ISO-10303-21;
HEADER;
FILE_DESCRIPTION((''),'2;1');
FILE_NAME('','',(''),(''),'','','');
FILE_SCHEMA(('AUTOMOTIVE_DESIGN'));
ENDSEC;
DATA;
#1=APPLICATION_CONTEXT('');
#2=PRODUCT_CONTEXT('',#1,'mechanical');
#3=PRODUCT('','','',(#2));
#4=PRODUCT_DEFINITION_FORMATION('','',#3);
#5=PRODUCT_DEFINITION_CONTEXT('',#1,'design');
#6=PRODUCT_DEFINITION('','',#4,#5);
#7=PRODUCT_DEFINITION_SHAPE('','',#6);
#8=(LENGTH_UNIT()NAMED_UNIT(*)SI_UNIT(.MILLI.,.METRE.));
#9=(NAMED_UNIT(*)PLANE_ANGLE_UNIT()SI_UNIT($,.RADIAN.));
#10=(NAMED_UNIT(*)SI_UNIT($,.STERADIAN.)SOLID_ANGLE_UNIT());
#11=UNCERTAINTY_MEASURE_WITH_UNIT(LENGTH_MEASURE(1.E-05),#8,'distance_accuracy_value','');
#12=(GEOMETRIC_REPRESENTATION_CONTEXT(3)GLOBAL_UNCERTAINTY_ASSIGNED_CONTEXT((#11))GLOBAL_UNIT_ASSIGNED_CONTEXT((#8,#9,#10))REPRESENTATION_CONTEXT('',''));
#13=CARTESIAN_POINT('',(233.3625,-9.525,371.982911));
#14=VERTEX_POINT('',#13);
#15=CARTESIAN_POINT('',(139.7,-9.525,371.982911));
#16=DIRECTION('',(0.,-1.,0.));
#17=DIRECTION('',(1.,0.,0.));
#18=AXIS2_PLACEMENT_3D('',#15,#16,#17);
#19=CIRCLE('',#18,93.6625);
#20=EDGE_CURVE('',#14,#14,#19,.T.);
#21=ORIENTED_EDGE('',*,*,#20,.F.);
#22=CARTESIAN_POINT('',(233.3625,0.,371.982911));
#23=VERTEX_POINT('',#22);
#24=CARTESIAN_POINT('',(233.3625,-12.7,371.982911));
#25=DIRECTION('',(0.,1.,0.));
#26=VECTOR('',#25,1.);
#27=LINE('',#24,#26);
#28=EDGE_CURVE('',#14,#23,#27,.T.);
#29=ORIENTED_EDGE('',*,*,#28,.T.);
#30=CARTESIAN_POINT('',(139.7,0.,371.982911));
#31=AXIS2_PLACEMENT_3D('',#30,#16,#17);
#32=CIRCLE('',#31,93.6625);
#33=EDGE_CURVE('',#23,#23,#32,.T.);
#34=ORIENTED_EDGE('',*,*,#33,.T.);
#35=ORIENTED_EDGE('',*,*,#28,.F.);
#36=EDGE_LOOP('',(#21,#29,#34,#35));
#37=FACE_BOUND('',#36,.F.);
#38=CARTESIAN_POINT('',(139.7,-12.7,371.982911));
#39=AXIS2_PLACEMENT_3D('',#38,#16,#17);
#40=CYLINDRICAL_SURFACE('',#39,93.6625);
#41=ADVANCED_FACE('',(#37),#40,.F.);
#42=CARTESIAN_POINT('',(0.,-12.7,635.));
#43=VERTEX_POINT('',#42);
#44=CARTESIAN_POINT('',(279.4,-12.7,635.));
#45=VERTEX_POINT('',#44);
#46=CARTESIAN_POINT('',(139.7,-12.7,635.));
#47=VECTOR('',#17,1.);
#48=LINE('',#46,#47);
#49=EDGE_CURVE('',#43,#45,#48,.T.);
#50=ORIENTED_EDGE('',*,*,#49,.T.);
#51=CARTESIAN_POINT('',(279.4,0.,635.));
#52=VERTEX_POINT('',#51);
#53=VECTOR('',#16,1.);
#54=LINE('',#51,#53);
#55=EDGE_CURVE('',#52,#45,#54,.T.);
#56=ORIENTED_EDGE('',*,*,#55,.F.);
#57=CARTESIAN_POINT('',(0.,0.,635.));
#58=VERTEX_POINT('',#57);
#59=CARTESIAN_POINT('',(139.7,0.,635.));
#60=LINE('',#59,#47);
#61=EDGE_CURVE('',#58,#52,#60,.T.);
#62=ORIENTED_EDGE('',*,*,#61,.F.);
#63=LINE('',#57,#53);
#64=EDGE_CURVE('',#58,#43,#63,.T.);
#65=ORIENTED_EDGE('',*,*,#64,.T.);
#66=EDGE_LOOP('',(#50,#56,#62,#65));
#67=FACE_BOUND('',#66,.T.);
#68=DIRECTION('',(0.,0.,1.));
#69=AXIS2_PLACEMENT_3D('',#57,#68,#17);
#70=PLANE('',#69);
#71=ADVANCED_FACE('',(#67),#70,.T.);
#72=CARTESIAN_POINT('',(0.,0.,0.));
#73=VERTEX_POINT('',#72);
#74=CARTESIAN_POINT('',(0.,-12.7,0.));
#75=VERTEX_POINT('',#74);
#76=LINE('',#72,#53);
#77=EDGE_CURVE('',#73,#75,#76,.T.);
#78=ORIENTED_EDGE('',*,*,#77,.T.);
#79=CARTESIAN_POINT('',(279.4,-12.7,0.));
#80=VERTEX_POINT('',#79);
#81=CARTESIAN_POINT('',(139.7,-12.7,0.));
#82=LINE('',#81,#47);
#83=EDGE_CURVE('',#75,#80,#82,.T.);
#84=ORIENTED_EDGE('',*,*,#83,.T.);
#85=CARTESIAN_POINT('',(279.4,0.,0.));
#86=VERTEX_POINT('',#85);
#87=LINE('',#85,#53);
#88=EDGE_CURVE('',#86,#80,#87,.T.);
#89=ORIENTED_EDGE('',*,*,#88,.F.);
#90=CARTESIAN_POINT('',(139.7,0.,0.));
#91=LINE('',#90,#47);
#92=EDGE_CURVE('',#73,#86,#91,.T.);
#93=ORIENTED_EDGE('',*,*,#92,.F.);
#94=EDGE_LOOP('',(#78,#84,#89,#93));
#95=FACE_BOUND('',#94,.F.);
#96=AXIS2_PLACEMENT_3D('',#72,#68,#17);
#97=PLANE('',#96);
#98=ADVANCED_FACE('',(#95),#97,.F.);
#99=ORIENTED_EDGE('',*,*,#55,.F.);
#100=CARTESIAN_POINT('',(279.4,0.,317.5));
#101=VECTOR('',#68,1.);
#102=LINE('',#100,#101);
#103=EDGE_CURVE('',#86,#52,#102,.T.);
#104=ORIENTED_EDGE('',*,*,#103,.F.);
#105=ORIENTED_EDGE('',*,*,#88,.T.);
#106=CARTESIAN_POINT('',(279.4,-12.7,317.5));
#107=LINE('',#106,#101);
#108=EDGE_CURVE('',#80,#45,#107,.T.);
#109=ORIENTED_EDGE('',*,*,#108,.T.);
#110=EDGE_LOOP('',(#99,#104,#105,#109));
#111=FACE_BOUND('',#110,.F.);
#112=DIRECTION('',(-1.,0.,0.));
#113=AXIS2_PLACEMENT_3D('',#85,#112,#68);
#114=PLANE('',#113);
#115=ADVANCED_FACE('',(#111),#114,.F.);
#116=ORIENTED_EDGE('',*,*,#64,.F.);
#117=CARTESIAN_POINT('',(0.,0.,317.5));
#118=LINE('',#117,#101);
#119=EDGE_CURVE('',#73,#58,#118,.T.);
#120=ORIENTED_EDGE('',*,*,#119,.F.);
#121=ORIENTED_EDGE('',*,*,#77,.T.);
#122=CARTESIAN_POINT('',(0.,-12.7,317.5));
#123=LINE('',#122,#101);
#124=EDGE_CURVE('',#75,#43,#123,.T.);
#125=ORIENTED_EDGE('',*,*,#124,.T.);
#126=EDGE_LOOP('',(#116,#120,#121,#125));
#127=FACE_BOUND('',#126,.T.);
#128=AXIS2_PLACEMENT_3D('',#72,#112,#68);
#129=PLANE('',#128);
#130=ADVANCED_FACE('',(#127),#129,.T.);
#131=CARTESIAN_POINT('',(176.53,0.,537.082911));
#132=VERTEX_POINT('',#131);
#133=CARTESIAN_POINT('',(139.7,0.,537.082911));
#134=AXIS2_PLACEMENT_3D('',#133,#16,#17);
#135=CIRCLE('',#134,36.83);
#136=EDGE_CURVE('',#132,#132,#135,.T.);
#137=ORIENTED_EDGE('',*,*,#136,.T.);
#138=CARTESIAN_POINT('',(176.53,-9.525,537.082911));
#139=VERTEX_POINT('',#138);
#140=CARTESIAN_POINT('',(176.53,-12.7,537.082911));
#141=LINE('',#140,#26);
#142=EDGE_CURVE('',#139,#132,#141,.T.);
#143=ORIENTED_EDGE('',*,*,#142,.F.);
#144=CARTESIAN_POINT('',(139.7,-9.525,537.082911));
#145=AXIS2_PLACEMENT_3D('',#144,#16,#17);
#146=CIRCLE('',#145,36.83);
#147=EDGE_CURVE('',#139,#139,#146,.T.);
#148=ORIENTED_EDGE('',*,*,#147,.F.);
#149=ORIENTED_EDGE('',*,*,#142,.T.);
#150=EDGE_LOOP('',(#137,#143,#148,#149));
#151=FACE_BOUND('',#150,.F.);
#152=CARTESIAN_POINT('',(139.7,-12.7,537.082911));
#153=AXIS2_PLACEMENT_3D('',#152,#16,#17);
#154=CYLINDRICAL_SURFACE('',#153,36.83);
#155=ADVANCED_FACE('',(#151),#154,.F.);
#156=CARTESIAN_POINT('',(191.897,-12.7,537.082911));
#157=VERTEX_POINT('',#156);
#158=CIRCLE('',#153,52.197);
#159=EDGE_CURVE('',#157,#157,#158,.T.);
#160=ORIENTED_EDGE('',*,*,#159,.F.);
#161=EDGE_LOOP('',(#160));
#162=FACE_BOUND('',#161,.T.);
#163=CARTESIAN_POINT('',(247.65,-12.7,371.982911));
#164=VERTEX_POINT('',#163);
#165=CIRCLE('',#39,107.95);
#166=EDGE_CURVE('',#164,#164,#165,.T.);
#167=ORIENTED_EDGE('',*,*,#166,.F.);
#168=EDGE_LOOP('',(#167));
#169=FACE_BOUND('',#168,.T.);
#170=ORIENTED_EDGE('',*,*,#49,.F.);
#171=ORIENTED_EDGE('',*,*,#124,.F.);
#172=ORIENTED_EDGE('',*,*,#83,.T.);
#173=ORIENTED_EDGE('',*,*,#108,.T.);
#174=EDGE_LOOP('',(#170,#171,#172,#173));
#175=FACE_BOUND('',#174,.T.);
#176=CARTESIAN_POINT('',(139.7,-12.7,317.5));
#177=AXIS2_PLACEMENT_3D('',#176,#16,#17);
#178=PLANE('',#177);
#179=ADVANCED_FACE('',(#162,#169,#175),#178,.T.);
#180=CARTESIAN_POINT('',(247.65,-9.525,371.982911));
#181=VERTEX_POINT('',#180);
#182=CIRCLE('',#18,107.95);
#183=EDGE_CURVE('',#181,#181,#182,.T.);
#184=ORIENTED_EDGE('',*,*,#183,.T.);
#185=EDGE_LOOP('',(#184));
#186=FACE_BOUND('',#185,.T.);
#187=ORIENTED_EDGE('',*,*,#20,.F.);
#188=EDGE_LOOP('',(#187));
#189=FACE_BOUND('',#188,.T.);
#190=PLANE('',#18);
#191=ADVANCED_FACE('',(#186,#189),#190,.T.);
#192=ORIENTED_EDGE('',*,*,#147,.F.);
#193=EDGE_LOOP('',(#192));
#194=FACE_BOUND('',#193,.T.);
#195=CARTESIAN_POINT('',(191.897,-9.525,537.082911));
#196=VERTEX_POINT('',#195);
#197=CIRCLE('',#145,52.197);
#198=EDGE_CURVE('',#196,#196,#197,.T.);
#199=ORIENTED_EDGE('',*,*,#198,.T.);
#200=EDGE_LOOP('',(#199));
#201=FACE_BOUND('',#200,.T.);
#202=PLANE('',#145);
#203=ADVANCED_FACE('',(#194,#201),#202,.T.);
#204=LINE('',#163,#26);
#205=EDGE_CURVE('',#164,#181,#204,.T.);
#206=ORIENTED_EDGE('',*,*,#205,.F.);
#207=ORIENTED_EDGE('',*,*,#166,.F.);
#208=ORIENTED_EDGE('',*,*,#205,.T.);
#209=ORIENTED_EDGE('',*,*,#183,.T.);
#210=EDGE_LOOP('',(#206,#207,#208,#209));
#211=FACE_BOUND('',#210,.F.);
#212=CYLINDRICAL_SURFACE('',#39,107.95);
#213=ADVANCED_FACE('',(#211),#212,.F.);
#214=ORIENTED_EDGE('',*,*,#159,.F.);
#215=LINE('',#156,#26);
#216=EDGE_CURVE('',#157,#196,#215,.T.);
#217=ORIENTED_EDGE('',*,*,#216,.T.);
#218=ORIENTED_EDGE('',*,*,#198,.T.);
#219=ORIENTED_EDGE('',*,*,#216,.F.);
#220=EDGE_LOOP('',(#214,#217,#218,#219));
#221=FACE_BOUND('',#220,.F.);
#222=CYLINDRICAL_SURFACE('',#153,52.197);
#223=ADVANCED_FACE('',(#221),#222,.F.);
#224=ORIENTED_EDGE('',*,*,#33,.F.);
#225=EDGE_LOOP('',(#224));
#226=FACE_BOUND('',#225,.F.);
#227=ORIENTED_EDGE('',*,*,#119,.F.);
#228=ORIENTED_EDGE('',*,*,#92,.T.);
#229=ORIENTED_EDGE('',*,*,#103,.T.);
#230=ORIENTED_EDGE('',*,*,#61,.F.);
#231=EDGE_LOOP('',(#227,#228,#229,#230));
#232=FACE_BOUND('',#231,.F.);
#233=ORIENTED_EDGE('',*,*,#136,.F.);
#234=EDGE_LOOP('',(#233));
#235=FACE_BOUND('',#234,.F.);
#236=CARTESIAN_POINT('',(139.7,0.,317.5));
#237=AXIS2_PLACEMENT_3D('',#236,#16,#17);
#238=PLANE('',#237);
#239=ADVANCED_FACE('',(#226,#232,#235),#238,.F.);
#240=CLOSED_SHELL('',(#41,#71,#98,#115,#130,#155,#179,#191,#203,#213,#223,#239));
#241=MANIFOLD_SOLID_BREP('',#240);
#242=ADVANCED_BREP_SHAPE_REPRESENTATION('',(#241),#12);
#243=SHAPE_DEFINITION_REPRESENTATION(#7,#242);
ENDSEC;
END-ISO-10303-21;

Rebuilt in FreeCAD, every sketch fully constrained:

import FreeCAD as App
import Part
import Sketcher

V = App.Vector
Q = App.Units.Quantity

doc = App.newDocument("Part")
body = doc.addObject("PartDesign::Body", "Body")

# Sketch on XZ plane
sketch1 = body.newObject("Sketcher::SketchObject", "Sketch")
sketch1.AttachmentSupport = (doc.getObject("XZ_Plane"), [""])
sketch1.MapMode = "FlatFace"
sketch1.addGeometry([
    Part.LineSegment(V(0, 635, 0), V(0, 0, 0)),
    Part.LineSegment(V(0, 0, 0), V(279.4, 0, 0)),
    Part.LineSegment(V(279.4, 0, 0), V(279.4, 635, 0)),
    Part.LineSegment(V(279.4, 635, 0), V(0, 635, 0)),
], False)
sketch1.addConstraint([
    Sketcher.Constraint("Coincident", 0, 2, 1, 1),
    Sketcher.Constraint("Coincident", 1, 2, 2, 1),
    Sketcher.Constraint("Coincident", 2, 2, 3, 1),
    Sketcher.Constraint("Coincident", 3, 2, 0, 1),
    Sketcher.Constraint("Vertical", 0),
    Sketcher.Constraint("Horizontal", 1),
    Sketcher.Constraint("Vertical", 2),
    Sketcher.Constraint("Horizontal", 3),
    Sketcher.Constraint("Coincident", 0, 2, -1, 1),
    Sketcher.Constraint("DistanceX", 1, 1, 1, 2, Q("11 in")),
    Sketcher.Constraint("DistanceY", 0, 2, 0, 1, Q("25 in")),
])
pad1 = body.newObject("PartDesign::Pad", "Pad")
pad1.Profile = sketch1
pad1.Length = Q("0.5 in")

# Sketch on XZ plane
sketch2 = body.newObject("Sketcher::SketchObject", "Sketch001")
sketch2.AttachmentSupport = (doc.getObject("XZ_Plane"), [""])
sketch2.MapMode = "FlatFace"
sketch2.AttachmentOffset = App.Placement(V(0, 0, 0.5 * 25.4), App.Rotation())
sketch2.addGeometry([
    Part.Circle(V(139.7, 537.082911, 0), V(0, 0, 1), 52.197),
    Part.Circle(V(139.7, 371.982911, 0), V(0, 0, 1), 107.95),
], False)
sketch2.addConstraint([
    Sketcher.Constraint("Vertical", 0, 3, 1, 3),
    Sketcher.Constraint("Diameter", 1, Q("8.5 in")),
    Sketcher.Constraint("Diameter", 0, Q("4.11 in")),
    Sketcher.Constraint("DistanceX", -1, 1, 0, 3, Q("5.5 in")),
    Sketcher.Constraint("DistanceY", 1, 3, 0, 3, Q("6.5 in")),
    Sketcher.Constraint("DistanceY", -1, 1, 0, 3, 537.082911),
])
pocket1 = body.newObject("PartDesign::Pocket", "Pocket")
pocket1.Profile = sketch2
pocket1.Length = Q("0.125 in")

# Sketch on XZ plane
sketch3 = body.newObject("Sketcher::SketchObject", "Sketch002")
sketch3.AttachmentSupport = (doc.getObject("XZ_Plane"), [""])
sketch3.MapMode = "FlatFace"
sketch3.AttachmentOffset = App.Placement(V(0, 0, 0.5 * 25.4), App.Rotation())
sketch3.addGeometry([
    Part.Circle(V(139.7, 537.082911, 0), V(0, 0, 1), 36.83),
    Part.Circle(V(139.7, 371.982911, 0), V(0, 0, 1), 93.6625),
], False)
sketch3.addConstraint([
    Sketcher.Constraint("Vertical", 0, 3, 1, 3),
    Sketcher.Constraint("Diameter", 0, Q("2.9 in")),
    Sketcher.Constraint("Diameter", 1, Q("7.375 in")),
    Sketcher.Constraint("DistanceX", -1, 1, 0, 3, Q("5.5 in")),
    Sketcher.Constraint("DistanceY", 1, 3, 0, 3, Q("6.5 in")),
    Sketcher.Constraint("DistanceY", -1, 1, 0, 3, 537.082911),
])
pocket2 = body.newObject("PartDesign::Pocket", "Pocket001")
pocket2.Profile = sketch3
pocket2.Type = "ThroughAll"

doc.recompute()
